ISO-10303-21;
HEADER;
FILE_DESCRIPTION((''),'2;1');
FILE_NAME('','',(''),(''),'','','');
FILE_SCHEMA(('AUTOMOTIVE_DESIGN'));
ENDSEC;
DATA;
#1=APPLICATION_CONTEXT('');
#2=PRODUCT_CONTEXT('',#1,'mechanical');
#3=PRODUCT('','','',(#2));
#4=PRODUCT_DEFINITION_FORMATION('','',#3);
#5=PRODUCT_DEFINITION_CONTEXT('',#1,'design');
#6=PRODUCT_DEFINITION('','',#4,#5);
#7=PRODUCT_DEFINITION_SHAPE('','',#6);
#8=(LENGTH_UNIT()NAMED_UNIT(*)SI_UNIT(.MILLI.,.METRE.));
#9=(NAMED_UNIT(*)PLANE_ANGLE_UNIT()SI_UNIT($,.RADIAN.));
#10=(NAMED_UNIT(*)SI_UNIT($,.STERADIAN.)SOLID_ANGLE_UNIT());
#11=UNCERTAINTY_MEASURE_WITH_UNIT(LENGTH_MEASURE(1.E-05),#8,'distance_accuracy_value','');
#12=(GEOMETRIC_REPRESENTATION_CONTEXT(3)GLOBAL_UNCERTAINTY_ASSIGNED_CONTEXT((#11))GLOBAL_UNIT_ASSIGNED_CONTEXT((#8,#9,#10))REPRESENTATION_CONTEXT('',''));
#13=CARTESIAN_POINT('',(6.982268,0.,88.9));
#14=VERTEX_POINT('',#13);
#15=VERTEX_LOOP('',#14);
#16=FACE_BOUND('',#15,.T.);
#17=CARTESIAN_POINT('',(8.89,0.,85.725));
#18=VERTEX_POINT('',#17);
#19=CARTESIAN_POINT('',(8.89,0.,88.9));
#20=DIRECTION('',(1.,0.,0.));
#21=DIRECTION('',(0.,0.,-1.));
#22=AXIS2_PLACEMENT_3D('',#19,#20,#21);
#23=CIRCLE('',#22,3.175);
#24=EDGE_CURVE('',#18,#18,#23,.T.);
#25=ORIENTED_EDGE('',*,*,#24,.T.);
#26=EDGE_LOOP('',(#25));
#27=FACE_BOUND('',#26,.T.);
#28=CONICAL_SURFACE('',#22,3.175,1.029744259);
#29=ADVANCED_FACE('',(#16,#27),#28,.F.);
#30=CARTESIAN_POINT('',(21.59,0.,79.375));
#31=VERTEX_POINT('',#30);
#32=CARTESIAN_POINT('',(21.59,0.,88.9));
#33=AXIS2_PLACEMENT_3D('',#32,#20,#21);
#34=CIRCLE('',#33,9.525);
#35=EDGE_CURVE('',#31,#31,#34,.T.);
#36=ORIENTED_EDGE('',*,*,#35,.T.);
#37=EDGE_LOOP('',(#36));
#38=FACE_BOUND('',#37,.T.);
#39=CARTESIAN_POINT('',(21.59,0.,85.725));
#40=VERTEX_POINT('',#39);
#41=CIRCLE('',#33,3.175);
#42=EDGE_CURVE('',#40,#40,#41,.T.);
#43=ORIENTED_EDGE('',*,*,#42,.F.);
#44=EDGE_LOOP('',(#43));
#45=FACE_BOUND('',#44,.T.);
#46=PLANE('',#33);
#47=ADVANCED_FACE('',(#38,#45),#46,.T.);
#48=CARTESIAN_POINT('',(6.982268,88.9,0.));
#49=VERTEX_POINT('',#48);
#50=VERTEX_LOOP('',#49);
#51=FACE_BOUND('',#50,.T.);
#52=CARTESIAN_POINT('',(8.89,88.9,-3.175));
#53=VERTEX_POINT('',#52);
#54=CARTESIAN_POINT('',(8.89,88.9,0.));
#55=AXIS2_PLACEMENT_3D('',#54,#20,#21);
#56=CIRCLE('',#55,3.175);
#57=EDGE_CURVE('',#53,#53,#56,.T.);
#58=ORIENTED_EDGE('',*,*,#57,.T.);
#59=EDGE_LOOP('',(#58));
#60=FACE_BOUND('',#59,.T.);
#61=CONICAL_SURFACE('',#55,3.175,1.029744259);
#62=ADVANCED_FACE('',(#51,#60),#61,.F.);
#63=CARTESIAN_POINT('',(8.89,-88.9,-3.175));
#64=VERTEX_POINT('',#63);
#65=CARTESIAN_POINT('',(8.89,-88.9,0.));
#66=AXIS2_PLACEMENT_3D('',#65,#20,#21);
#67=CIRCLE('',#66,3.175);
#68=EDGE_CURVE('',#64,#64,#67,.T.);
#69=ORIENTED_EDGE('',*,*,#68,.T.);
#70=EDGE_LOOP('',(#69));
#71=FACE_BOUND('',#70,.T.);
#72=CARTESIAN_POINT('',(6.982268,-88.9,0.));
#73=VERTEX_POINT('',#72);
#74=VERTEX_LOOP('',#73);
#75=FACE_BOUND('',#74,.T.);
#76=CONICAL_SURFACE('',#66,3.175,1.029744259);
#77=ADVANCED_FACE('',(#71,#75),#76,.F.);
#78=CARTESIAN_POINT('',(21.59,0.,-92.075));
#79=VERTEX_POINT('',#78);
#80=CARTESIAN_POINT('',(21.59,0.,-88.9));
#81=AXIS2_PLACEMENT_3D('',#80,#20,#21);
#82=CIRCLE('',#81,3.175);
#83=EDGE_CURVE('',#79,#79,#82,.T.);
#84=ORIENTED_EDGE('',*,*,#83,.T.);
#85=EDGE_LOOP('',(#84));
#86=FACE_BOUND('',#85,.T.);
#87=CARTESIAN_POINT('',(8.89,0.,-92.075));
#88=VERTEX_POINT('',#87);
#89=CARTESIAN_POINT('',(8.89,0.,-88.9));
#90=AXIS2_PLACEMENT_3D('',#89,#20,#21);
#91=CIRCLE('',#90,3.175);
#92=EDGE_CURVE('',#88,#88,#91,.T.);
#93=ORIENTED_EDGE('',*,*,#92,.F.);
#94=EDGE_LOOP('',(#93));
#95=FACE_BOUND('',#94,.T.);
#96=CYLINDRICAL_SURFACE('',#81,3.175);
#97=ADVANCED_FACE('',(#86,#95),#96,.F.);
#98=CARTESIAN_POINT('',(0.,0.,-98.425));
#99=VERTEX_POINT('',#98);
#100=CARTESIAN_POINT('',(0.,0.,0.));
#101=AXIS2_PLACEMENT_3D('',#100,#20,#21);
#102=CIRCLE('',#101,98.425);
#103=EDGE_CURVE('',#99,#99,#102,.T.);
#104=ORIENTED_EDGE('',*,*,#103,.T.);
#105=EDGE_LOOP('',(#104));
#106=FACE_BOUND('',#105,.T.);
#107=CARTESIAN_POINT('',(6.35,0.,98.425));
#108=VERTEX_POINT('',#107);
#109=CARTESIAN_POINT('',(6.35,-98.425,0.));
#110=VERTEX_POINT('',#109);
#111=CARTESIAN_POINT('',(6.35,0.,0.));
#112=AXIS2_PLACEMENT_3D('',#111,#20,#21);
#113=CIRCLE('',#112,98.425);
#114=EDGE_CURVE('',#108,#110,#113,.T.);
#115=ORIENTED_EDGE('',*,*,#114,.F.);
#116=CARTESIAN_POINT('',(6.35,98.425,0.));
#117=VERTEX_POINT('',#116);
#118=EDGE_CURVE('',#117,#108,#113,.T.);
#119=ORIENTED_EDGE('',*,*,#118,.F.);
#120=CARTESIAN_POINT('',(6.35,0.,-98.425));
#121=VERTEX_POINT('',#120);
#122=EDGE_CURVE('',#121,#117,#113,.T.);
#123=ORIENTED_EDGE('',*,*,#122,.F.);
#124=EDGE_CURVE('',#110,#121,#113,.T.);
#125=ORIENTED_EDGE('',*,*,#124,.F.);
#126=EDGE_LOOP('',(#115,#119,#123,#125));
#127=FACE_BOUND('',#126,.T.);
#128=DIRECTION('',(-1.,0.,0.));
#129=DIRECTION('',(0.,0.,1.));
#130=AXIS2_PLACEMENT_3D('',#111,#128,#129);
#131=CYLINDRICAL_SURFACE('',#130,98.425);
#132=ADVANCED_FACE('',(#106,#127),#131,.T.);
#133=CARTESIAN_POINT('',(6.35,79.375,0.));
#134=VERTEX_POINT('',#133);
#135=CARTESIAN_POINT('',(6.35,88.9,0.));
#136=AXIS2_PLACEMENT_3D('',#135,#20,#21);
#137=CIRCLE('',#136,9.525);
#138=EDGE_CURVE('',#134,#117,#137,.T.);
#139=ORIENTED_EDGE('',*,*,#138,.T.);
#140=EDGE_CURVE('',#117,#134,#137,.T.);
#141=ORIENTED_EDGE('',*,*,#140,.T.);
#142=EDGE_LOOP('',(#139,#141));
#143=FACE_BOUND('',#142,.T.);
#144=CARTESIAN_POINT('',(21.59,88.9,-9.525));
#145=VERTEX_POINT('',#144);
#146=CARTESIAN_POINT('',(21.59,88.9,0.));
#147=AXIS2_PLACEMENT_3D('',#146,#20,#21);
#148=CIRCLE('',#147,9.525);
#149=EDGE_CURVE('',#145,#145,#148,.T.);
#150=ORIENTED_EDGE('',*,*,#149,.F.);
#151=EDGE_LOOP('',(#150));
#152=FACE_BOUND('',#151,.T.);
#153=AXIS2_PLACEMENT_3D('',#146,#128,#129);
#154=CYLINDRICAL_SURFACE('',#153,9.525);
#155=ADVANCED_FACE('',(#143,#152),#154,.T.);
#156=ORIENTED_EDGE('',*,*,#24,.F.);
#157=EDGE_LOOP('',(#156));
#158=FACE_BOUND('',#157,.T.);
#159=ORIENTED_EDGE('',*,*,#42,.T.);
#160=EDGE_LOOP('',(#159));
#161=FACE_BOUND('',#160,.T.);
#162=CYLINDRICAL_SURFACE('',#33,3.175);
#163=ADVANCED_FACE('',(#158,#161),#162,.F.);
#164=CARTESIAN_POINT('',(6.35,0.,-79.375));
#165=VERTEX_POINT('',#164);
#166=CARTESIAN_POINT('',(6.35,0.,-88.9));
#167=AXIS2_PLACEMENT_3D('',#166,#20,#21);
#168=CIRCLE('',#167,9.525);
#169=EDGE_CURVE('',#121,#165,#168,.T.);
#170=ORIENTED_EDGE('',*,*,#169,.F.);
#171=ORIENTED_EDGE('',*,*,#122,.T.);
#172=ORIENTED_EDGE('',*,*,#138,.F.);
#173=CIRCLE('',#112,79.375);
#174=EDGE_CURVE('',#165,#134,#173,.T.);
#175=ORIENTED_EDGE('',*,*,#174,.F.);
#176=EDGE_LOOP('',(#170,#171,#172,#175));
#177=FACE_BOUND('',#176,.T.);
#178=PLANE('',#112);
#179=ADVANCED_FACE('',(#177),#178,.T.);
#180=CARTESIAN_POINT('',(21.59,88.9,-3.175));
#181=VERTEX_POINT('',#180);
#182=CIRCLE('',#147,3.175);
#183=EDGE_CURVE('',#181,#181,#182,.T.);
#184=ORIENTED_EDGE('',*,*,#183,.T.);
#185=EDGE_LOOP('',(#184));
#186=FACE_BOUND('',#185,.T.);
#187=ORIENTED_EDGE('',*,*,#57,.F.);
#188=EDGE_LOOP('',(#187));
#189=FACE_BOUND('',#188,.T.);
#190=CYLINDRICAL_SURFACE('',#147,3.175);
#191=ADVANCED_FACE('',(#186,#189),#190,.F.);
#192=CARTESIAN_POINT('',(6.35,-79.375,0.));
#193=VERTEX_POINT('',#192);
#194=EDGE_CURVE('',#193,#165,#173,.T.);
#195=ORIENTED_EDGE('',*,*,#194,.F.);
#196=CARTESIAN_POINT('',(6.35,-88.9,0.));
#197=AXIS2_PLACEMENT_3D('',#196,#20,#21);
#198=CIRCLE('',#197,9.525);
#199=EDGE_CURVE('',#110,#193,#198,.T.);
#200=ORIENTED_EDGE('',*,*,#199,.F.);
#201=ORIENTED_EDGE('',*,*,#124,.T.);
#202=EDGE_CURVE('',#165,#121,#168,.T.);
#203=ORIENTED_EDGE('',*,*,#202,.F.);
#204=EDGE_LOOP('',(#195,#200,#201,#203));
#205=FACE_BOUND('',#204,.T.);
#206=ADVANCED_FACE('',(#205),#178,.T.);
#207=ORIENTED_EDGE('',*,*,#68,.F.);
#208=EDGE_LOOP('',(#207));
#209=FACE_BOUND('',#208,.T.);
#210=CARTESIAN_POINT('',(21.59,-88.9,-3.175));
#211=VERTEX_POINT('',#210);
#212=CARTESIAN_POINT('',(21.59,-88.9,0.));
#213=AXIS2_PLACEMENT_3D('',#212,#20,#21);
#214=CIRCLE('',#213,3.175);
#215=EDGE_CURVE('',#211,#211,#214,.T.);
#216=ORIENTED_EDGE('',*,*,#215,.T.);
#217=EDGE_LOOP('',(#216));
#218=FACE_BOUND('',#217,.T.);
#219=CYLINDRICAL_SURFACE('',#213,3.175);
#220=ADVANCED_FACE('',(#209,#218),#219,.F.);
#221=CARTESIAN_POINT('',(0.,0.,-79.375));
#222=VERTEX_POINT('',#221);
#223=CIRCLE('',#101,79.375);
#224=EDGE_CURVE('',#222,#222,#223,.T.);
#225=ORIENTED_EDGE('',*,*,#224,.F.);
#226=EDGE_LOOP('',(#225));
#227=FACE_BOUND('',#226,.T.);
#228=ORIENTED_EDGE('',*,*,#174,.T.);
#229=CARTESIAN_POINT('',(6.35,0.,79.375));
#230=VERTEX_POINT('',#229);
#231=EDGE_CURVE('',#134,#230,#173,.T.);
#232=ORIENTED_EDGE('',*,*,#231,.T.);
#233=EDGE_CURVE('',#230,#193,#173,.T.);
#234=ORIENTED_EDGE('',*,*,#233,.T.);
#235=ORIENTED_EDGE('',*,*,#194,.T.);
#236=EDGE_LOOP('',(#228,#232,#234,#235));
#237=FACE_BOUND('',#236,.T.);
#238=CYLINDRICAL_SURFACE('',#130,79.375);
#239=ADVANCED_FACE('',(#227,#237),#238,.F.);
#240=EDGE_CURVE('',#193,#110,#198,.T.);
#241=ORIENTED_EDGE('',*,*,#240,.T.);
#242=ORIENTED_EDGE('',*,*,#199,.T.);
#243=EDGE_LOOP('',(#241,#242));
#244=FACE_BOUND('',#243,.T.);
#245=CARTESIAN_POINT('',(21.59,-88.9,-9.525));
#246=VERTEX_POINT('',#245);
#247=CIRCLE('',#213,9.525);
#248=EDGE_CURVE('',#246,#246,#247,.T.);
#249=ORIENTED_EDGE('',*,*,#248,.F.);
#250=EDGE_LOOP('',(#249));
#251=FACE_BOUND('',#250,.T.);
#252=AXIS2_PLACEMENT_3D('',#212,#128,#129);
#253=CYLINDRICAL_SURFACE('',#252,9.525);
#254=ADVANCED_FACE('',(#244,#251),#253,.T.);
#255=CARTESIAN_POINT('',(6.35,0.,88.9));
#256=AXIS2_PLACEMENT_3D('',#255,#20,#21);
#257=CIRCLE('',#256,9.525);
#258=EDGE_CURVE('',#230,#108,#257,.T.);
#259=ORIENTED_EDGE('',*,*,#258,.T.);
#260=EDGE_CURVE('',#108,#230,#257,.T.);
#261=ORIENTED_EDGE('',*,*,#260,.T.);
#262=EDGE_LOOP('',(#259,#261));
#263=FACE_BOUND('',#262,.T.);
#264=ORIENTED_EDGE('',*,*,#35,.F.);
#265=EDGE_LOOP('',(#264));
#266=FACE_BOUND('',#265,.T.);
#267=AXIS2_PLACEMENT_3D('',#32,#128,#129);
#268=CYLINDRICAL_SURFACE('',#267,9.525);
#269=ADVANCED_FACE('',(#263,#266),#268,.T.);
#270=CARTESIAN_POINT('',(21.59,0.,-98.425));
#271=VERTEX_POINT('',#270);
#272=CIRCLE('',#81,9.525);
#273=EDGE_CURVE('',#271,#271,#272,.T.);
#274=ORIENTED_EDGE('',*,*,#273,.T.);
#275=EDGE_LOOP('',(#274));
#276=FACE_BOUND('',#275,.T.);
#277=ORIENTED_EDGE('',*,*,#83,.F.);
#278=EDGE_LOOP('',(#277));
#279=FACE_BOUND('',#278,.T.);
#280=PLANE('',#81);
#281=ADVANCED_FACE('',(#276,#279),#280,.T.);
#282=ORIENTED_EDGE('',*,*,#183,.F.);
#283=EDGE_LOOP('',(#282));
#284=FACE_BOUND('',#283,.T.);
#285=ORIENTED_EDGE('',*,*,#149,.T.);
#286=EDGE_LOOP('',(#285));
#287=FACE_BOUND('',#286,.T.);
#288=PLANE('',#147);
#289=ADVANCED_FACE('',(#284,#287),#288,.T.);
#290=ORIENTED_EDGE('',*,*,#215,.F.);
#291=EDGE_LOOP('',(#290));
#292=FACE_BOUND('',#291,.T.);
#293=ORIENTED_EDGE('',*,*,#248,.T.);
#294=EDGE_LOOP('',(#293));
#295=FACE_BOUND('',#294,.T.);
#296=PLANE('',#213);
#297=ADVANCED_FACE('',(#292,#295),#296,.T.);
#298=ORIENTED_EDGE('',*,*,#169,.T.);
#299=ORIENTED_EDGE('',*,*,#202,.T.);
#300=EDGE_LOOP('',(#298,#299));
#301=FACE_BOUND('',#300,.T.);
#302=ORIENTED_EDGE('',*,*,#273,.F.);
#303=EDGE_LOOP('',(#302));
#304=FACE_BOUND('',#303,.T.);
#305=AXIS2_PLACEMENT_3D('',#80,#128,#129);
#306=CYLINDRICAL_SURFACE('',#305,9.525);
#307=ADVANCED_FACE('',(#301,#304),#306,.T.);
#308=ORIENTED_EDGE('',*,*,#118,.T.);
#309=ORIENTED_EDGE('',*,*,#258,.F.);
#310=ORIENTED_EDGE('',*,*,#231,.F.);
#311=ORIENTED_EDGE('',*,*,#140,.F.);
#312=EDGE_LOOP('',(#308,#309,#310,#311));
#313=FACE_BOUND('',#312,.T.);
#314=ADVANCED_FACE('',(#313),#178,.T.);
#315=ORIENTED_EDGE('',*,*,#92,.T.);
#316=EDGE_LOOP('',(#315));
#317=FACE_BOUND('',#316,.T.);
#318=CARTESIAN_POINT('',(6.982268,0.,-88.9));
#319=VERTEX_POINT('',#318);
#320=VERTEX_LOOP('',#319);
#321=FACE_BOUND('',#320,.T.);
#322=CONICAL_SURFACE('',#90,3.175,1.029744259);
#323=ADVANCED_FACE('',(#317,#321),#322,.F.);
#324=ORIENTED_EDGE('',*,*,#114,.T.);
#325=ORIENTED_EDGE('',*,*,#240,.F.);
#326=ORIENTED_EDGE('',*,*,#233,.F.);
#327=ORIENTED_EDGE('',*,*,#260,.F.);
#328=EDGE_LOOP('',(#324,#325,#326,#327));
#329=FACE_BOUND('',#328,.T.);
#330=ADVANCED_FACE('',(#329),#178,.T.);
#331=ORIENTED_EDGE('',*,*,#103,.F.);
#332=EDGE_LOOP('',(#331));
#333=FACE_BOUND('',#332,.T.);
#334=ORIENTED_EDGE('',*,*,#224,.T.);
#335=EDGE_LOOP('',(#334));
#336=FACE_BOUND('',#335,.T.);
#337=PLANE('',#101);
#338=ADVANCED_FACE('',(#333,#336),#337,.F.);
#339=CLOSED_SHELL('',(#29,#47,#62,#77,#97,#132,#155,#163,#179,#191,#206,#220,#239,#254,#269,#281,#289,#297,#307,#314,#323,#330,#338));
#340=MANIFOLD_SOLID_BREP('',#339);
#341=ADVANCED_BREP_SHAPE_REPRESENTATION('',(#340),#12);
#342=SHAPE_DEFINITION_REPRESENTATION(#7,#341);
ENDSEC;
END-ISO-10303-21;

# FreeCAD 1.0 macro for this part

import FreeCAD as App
import Part
import Sketcher
Q = App.Units.Quantity


def add_polygon(sketch, points):
    """Adds a closed chain of lines whose ends are joined by coincident constraints."""
    first, n = sketch.GeometryCount, len(points)
    for a, b in zip(points, points[1:] + points[:1]):
        sketch.addGeometry(Part.LineSegment(App.Vector(*a, 0), App.Vector(*b, 0)), False)
    for i in range(n):
        sketch.addConstraint(Sketcher.Constraint("Coincident", first + i, 2, first + (i + 1) % n, 1))

doc = App.newDocument("Part")
body = doc.addObject("PartDesign::Body", "Body")

# Sketch on YZ plane
sketch1 = doc.addObject("Sketcher::SketchObject", "Sketch")
body.addObject(sketch1)
sketch1.AttachmentSupport = (doc.YZ_Plane, [""])
sketch1.MapMode = "FlatFace"
sketch1.addGeometry([
    Part.Circle(App.Vector(0, 0, 0), App.Vector(0, 0, 1), 98),
    Part.Circle(App.Vector(0, 0, 0), App.Vector(0, 0, 1), 79),
], False)
sketch1.addConstraint([
    Sketcher.Constraint("Coincident", 0, 3, -1, 1),
    Sketcher.Constraint("Coincident", 1, 3, -1, 1),
    Sketcher.Constraint("Diameter", 0, Q("7.75 in")),
    Sketcher.Constraint("Diameter", 1, Q("6.25 in")),
])
pad1 = doc.addObject("PartDesign::Pad", "Pad")
body.addObject(pad1)
pad1.Profile = sketch1
pad1.Length = Q("0.25 in")

# Sketch on YZ plane
sketch2 = doc.addObject("Sketcher::SketchObject", "Sketch001")
body.addObject(sketch2)
sketch2.AttachmentSupport = (doc.YZ_Plane, [""])
sketch2.MapMode = "FlatFace"
sketch2.AttachmentOffset = App.Placement(App.Vector(0, 0, 0.25 * 25.4), App.Rotation())
sketch2.addGeometry(Part.Circle(App.Vector(0, -89, 0), App.Vector(0, 0, 1), 10), False)
sketch2.addConstraint([
    Sketcher.Constraint("PointOnObject", 0, 3, -2),
    Sketcher.Constraint("Diameter", 0, Q("0.75 in")),
    Sketcher.Constraint("DistanceY", 0, 3, -1, 1, Q("3.5 in")),
])
pad2 = doc.addObject("PartDesign::Pad", "Pad001")
body.addObject(pad2)
pad2.Profile = sketch2
pad2.Length = Q("0.6 in")

# Sketch on XZ plane
sketch3 = doc.addObject("Sketcher::SketchObject", "Sketch002")
body.addObject(sketch3)
sketch3.AttachmentSupport = (doc.XZ_Plane, [""])
sketch3.MapMode = "FlatFace"
add_polygon(sketch3, [(7, -88.9), (21.6, -88.9), (21.6, -92.1), (8.9, -92.1)])  # lines 0-3
sketch3.addGeometry(Part.LineSegment(App.Vector(21.6, -88.9, 0), App.Vector(7, -88.9, 0)), True)  # axis
sketch3.addConstraint([
    Sketcher.Constraint("Horizontal", 0),
    Sketcher.Constraint("Vertical", 1),
    Sketcher.Constraint("Horizontal", 2),
    Sketcher.Constraint("Horizontal", 4),
    Sketcher.Constraint("Coincident", 4, 1, 0, 2),
    Sketcher.Constraint("Equal", 0, 4),
    Sketcher.Constraint("DistanceX", 2, 2, 2, 1, Q("0.5 in")),
    Sketcher.Constraint("Angle", 3, Q("121 deg")),
    Sketcher.Constraint("DistanceY", 0, 2, -1, 1, Q("3.5 in")),
    Sketcher.Constraint("DistanceY", 1, 2, 1, 1, Q("0.125 in")),
    Sketcher.Constraint("DistanceX", -1, 1, 0, 2, Q("0.85 in")),
])
groove = doc.addObject("PartDesign::Groove", "Groove")
body.addObject(groove)
groove.Profile = sketch3
groove.ReferenceAxis = (sketch3, ["Axis0"])
groove.Angle = 360
doc.recompute()

polarpattern = doc.addObject("PartDesign::PolarPattern", "PolarPattern")
body.addObject(polarpattern)
polarpattern.Originals = [pad2, groove]
polarpattern.Axis = (doc.X_Axis, [""])
polarpattern.Angle = 360
polarpattern.Occurrences = 4
body.Tip = polarpattern

doc.recompute()
